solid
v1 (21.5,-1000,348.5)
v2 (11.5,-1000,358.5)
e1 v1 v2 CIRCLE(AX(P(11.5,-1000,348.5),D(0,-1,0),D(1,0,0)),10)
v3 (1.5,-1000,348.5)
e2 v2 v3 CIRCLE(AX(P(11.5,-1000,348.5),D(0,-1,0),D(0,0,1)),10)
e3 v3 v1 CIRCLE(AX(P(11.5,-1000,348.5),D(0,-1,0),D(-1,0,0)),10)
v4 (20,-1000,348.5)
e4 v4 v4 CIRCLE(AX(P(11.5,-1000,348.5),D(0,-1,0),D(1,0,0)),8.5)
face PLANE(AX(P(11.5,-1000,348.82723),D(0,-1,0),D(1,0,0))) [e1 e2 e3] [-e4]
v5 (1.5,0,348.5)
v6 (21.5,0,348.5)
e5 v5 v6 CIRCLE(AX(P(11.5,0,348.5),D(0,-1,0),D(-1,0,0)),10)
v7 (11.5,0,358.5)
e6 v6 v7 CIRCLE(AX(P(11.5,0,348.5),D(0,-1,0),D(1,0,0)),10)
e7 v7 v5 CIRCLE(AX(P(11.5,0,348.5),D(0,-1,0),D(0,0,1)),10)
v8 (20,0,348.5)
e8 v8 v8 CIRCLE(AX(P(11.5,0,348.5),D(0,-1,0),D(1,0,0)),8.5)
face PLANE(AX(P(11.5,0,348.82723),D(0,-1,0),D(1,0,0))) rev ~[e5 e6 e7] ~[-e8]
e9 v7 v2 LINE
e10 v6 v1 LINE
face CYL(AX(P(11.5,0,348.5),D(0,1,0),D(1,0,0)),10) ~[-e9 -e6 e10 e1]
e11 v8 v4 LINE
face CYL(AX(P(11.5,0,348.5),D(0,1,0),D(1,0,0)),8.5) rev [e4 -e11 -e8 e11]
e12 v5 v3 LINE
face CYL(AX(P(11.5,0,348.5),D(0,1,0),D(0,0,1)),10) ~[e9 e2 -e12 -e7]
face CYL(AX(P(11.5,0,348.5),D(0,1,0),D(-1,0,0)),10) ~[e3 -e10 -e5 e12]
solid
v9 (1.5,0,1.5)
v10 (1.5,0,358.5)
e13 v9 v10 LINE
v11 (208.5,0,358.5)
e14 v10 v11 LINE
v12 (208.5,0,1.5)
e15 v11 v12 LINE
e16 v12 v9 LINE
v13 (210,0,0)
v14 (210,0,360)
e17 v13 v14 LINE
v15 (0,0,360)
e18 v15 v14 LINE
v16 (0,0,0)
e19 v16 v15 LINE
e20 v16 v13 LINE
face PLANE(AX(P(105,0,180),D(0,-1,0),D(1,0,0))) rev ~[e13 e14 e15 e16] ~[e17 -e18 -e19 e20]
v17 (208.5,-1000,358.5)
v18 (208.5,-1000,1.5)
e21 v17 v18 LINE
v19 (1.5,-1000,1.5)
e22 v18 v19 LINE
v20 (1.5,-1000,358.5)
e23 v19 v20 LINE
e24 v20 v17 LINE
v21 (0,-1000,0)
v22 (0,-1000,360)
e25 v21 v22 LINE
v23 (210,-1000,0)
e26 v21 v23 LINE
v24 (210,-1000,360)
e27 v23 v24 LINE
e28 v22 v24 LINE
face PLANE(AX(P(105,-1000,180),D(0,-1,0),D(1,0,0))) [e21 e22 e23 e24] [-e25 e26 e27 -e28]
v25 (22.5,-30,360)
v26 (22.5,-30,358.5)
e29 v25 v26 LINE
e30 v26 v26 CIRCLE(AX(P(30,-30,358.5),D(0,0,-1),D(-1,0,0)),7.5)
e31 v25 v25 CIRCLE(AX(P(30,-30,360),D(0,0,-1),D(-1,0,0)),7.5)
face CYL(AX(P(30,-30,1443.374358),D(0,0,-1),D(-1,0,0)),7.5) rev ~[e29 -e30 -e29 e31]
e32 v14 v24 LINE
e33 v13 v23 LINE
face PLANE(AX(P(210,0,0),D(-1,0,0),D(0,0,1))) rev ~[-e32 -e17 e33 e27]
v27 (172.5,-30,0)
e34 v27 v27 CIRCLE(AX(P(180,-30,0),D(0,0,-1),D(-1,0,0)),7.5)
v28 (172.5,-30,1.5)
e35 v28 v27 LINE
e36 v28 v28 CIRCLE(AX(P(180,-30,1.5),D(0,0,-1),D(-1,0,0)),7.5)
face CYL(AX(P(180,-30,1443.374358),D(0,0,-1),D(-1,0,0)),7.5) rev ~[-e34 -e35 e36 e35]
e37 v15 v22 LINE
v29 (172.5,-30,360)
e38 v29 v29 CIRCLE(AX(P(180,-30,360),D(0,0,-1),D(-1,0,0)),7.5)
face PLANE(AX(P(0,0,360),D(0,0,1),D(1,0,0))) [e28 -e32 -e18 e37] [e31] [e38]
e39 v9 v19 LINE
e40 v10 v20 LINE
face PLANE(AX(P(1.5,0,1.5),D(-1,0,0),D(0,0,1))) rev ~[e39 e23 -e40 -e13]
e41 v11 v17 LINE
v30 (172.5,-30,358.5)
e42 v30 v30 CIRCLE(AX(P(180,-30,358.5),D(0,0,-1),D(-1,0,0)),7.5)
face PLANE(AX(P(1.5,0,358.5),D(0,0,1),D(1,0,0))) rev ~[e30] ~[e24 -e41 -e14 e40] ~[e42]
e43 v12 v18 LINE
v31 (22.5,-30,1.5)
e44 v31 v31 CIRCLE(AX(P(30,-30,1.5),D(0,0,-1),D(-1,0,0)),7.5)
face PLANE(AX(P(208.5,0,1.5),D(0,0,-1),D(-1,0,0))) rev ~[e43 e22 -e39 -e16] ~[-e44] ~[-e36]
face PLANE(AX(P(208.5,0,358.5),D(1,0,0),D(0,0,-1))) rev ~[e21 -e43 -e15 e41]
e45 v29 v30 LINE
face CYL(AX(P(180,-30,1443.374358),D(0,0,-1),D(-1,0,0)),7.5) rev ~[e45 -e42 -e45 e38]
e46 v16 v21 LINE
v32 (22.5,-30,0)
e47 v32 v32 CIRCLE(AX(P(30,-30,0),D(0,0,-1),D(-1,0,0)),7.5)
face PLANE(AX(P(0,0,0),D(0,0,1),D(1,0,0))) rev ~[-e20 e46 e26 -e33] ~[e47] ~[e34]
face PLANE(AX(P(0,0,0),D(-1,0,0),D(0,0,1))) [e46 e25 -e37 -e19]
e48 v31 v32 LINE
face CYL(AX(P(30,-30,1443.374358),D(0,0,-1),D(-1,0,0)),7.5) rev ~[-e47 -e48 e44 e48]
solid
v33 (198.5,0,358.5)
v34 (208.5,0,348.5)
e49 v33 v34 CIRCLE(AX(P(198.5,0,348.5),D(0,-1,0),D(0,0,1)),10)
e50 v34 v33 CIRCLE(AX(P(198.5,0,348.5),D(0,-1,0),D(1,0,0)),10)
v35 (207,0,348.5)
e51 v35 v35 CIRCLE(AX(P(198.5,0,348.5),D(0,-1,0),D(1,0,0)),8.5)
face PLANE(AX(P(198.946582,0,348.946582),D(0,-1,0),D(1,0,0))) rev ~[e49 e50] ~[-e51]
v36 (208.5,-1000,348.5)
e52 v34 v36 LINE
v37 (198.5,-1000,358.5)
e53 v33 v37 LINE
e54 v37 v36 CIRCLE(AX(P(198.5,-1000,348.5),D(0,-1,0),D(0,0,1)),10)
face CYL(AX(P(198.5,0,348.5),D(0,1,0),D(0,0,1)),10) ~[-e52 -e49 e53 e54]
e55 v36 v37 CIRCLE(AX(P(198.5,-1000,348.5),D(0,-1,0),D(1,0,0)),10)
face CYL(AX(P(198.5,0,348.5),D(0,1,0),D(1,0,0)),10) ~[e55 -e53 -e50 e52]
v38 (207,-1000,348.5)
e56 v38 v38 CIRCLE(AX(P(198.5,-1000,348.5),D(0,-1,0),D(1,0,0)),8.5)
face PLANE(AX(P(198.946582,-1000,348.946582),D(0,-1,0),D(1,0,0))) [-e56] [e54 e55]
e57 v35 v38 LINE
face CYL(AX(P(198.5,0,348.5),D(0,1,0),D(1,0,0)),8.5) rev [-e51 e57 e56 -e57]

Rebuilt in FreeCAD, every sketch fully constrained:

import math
import FreeCAD as App
import Part
import Sketcher
Q = App.Units.Quantity

doc = App.newDocument("Part")
body = doc.addObject("PartDesign::Body", "Body")

sketch1 = body.newObject("Sketcher::SketchObject", "Sketch")
sketch1.AttachmentSupport = (doc.getObject("XZ_Plane"), [""])
sketch1.MapMode = "FlatFace"
sketch1.addGeometry(Part.LineSegment(App.Vector(0, 360, 0), App.Vector(0, 0, 0)), False)
sketch1.addGeometry(Part.LineSegment(App.Vector(0, 0, 0), App.Vector(210, 0, 0)), False)
sketch1.addGeometry(Part.LineSegment(App.Vector(210, 0, 0), App.Vector(210, 360, 0)), False)
sketch1.addGeometry(Part.LineSegment(App.Vector(210, 360, 0), App.Vector(0, 360, 0)), False)
sketch1.addGeometry(Part.LineSegment(App.Vector(1.5, 1.5, 0), App.Vector(1.5, 358.5, 0)), False)
sketch1.addGeometry(Part.LineSegment(App.Vector(1.5, 358.5, 0), App.Vector(208.5, 358.5, 0)), False)
sketch1.addGeometry(Part.LineSegment(App.Vector(208.5, 358.5, 0), App.Vector(208.5, 1.5, 0)), False)
sketch1.addGeometry(Part.LineSegment(App.Vector(208.5, 1.5, 0), App.Vector(1.5, 1.5, 0)), False)
sketch1.addConstraint(Sketcher.Constraint("Coincident", 0, 2, 1, 1))
sketch1.addConstraint(Sketcher.Constraint("Coincident", 1, 2, 2, 1))
sketch1.addConstraint(Sketcher.Constraint("Coincident", 2, 2, 3, 1))
sketch1.addConstraint(Sketcher.Constraint("Coincident", 3, 2, 0, 1))
sketch1.addConstraint(Sketcher.Constraint("Coincident", 4, 2, 5, 1))
sketch1.addConstraint(Sketcher.Constraint("Coincident", 5, 2, 6, 1))
sketch1.addConstraint(Sketcher.Constraint("Coincident", 6, 2, 7, 1))
sketch1.addConstraint(Sketcher.Constraint("Coincident", 7, 2, 4, 1))
sketch1.addConstraint(Sketcher.Constraint("Vertical", 0))
sketch1.addConstraint(Sketcher.Constraint("Horizontal", 1))
sketch1.addConstraint(Sketcher.Constraint("Vertical", 2))
sketch1.addConstraint(Sketcher.Constraint("Horizontal", 3))
sketch1.addConstraint(Sketcher.Constraint("Vertical", 4))
sketch1.addConstraint(Sketcher.Constraint("Horizontal", 5))
sketch1.addConstraint(Sketcher.Constraint("Vertical", 6))
sketch1.addConstraint(Sketcher.Constraint("Horizontal", 7))
sketch1.addConstraint(Sketcher.Constraint("Coincident", 0, 2, -1, 1))
sketch1.addConstraint(Sketcher.Constraint("DistanceX", 1, 1, 1, 2, Q("210 mm")))
sketch1.addConstraint(Sketcher.Constraint("DistanceX", 5, 1, 5, 2, Q("207 mm")))
sketch1.addConstraint(Sketcher.Constraint("DistanceY", 0, 2, 0, 1, Q("360 mm")))
sketch1.addConstraint(Sketcher.Constraint("DistanceY", 4, 1, 4, 2, Q("357 mm")))
sketch1.addConstraint(Sketcher.Constraint("DistanceX", -1, 1, 4, 2, Q("1.5 mm")))
sketch1.addConstraint(Sketcher.Constraint("DistanceY", -1, 1, 4, 2, Q("358.5 mm")))
pad1 = body.newObject("PartDesign::Pad", "Pad")
pad1.Profile = sketch1
pad1.Length = 1000

sketch2 = body.newObject("Sketcher::SketchObject", "Sketch001")
sketch2.AttachmentSupport = (doc.getObject("XY_Plane"), [""])
sketch2.MapMode = "FlatFace"
sketch2.AttachmentOffset = App.Placement(App.Vector(0, 0, 360), App.Rotation())
sketch2.addGeometry(Part.Circle(App.Vector(180, -30, 0), App.Vector(0, 0, 1), 7.5), False)
sketch2.addGeometry(Part.Circle(App.Vector(30, -30, 0), App.Vector(0, 0, 1), 7.5), False)
sketch2.addConstraint(Sketcher.Constraint("Equal", 0, 1))
sketch2.addConstraint(Sketcher.Constraint("Horizontal", 0, 3, 1, 3))
sketch2.addConstraint(Sketcher.Constraint("Diameter", 0, Q("15 mm")))
sketch2.addConstraint(Sketcher.Constraint("DistanceX", -1, 1, 0, 3, Q("180 mm")))
sketch2.addConstraint(Sketcher.Constraint("DistanceY", 0, 3, -1, 1, Q("30 mm")))
sketch2.addConstraint(Sketcher.Constraint("DistanceX", -1, 1, 1, 3, Q("30 mm")))
doc.recompute()
hole = body.newObject("PartDesign::Hole", "Hole")
hole.Profile = sketch2
hole.ThreadType = "None"
hole.Diameter = 15
hole.DepthType = "ThroughAll"
body2 = doc.addObject("PartDesign::Body", "Body001")

sketch3 = body2.newObject("Sketcher::SketchObject", "Sketch002")
sketch3.AttachmentSupport = (doc.getObject("XZ_Plane001"), [""])
sketch3.MapMode = "FlatFace"
sketch3.addGeometry(Part.ArcOfCircle(Part.Circle(App.Vector(198.5, 348.5, 0), App.Vector(0, 0, 1), 10), math.radians(0), math.radians(90)), False)
sketch3.addGeometry(Part.ArcOfCircle(Part.Circle(App.Vector(198.5, 348.5, 0), App.Vector(0, 0, 1), 10), math.radians(90), math.radians(360)), False)
sketch3.addGeometry(Part.Circle(App.Vector(198.5, 348.5, 0), App.Vector(0, 0, 1), 8.5), False)
sketch3.addConstraint(Sketcher.Constraint("Tangent", 0, 1, 1, 2))
sketch3.addConstraint(Sketcher.Constraint("Coincident", 1, 1, 0, 2))
sketch3.addConstraint(Sketcher.Constraint("Coincident", 2, 3, 0, 3))
sketch3.addConstraint(Sketcher.Constraint("Horizontal", 2, 3, 0, 1))
sketch3.addConstraint(Sketcher.Constraint("Vertical", 2, 3, 1, 1))
sketch3.addConstraint(Sketcher.Constraint("Diameter", 2, Q("17 mm")))
sketch3.addConstraint(Sketcher.Constraint("Radius", 0, Q("10 mm")))
sketch3.addConstraint(Sketcher.Constraint("DistanceX", -1, 1, 0, 3, Q("198.5 mm")))
sketch3.addConstraint(Sketcher.Constraint("DistanceY", -1, 1, 0, 3, Q("348.5 mm")))
pad2 = body2.newObject("PartDesign::Pad", "Pad001")
pad2.Profile = sketch3
pad2.Length = 1000
body3 = doc.addObject("PartDesign::Body", "Body002")

sketch4 = body3.newObject("Sketcher::SketchObject", "Sketch003")
sketch4.AttachmentSupport = (doc.getObject("XZ_Plane002"), [""])
sketch4.MapMode = "FlatFace"
sketch4.addGeometry(Part.ArcOfCircle(Part.Circle(App.Vector(11.5, 348.5, 0), App.Vector(0, 0, 1), 10), math.radians(0), math.radians(90)), False)
sketch4.addGeometry(Part.ArcOfCircle(Part.Circle(App.Vector(11.5, 348.5, 0), App.Vector(0, 0, 1), 10), math.radians(90), math.radians(180)), False)
sketch4.addGeometry(Part.ArcOfCircle(Part.Circle(App.Vector(11.5, 348.5, 0), App.Vector(0, 0, 1), 10), math.radians(180), math.radians(360)), False)
sketch4.addGeometry(Part.Circle(App.Vector(11.5, 348.5, 0), App.Vector(0, 0, 1), 8.5), False)
sketch4.addConstraint(Sketcher.Constraint("Tangent", 0, 2, 1, 1))
sketch4.addConstraint(Sketcher.Constraint("Tangent", 1, 2, 2, 1))
sketch4.addConstraint(Sketcher.Constraint("Tangent", 2, 2, 0, 1))
sketch4.addConstraint(Sketcher.Constraint("Coincident", 3, 3, 0, 3))
sketch4.addConstraint(Sketcher.Constraint("Horizontal", 3, 3, 1, 2))
sketch4.addConstraint(Sketcher.Constraint("Horizontal", 1, 2, 2, 2))
sketch4.addConstraint(Sketcher.Constraint("Vertical", 3, 3, 0, 2))
sketch4.addConstraint(Sketcher.Constraint("Diameter", 3, Q("17 mm")))
sketch4.addConstraint(Sketcher.Constraint("Radius", 0, Q("10 mm")))
sketch4.addConstraint(Sketcher.Constraint("DistanceX", -1, 1, 0, 3, Q("11.5 mm")))
sketch4.addConstraint(Sketcher.Constraint("DistanceY", -1, 1, 0, 3, Q("348.5 mm")))
pad3 = body3.newObject("PartDesign::Pad", "Pad002")
pad3.Profile = sketch4
pad3.Length = 1000

doc.recompute()
